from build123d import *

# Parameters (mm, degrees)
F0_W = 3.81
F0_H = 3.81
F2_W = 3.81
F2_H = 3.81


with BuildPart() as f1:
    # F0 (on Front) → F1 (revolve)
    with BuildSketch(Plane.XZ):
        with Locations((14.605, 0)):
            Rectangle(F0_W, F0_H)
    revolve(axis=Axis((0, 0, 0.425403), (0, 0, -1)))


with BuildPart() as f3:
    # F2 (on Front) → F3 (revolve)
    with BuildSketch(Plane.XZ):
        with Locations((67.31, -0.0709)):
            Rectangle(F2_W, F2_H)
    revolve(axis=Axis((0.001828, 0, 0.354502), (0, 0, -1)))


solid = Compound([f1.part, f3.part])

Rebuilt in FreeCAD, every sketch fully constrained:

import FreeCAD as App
import Part
import Sketcher

V = App.Vector
Q = App.Units.Quantity

doc = App.newDocument("Part")
params = doc.addObject("Spreadsheet::Sheet", "Params")
for row, (alias, value) in enumerate([
    ("sketch1_width", "0.15 in"),
    ("revolution_angle", "360 deg"),
    ("sketch2_width", "0.15 in"),
    ("revolution2_angle", "360 deg"),
], start=1):
    params.set(f"A{row}", alias)
    params.set(f"B{row}", "=" + value)
    params.setAlias(f"B{row}", alias)

body = doc.addObject("PartDesign::Body", "Body")

sketch1 = doc.addObject("Sketcher::SketchObject", "Sketch")
body.addObject(sketch1)
sketch1.AttachmentSupport = (doc.XZ_Plane, [""])
sketch1.MapMode = "FlatFace"
sketch1.addGeometry(Part.LineSegment(V(12.7, 1.9, 0), V(12.7, -1.9, 0)), False)
sketch1.addGeometry(Part.LineSegment(V(12.7, -1.9, 0), V(16.5, -1.9, 0)), False)
sketch1.addGeometry(Part.LineSegment(V(16.5, -1.9, 0), V(16.5, 1.9, 0)), False)
sketch1.addGeometry(Part.LineSegment(V(16.5, 1.9, 0), V(12.7, 1.9, 0)), False)
sketch1.addConstraint(Sketcher.Constraint("Coincident", 0, 2, 1, 1))
sketch1.addConstraint(Sketcher.Constraint("Coincident", 1, 2, 2, 1))
sketch1.addConstraint(Sketcher.Constraint("Coincident", 2, 2, 3, 1))
sketch1.addConstraint(Sketcher.Constraint("Coincident", 3, 2, 0, 1))
sketch1.addConstraint(Sketcher.Constraint("Vertical", 0))
sketch1.addConstraint(Sketcher.Constraint("Horizontal", 1))
sketch1.addConstraint(Sketcher.Constraint("Vertical", 2))
sketch1.addConstraint(Sketcher.Constraint("Horizontal", 3))
sketch1.addConstraint(Sketcher.Constraint("Equal", 3, 0))
sketch1.addConstraint(Sketcher.Constraint("DistanceX", 1, 1, 1, 2, Q("0.15 in")))
sketch1.addConstraint(Sketcher.Constraint("DistanceX", -1, 1, 0, 2, Q("0.5 in")))
sketch1.addConstraint(Sketcher.Constraint("DistanceY", 0, 2, -1, 1, Q("0.075 in")))
sketch1.setExpression("Constraints[9]", "Params.sketch1_width")
revolution = doc.addObject("PartDesign::Revolution", "Revolution")
body.addObject(revolution)
revolution.Profile = sketch1
revolution.ReferenceAxis = (sketch1, ["V_Axis"])
revolution.setExpression("Angle", "Params.revolution_angle")
body2 = doc.addObject("PartDesign::Body", "Body001")

sketch2 = doc.addObject("Sketcher::SketchObject", "Sketch001")
body2.addObject(sketch2)
sketch2.AttachmentSupport = (doc.getObject("XZ_Plane001"), [""])
sketch2.MapMode = "FlatFace"
sketch2.addGeometry(Part.LineSegment(V(65.4, 1.8, 0), V(65.4, -2, 0)), False)
sketch2.addGeometry(Part.LineSegment(V(65.4, -2, 0), V(69.2, -2, 0)), False)
sketch2.addGeometry(Part.LineSegment(V(69.2, -2, 0), V(69.2, 1.8, 0)), False)
sketch2.addGeometry(Part.LineSegment(V(69.2, 1.8, 0), V(65.4, 1.8, 0)), False)
sketch2.addGeometry(Part.LineSegment(V(0, 1.8, 0), V(0, -2, 0)), True)
sketch2.addConstraint(Sketcher.Constraint("Coincident", 0, 2, 1, 1))
sketch2.addConstraint(Sketcher.Constraint("Coincident", 1, 2, 2, 1))
sketch2.addConstraint(Sketcher.Constraint("Coincident", 2, 2, 3, 1))
sketch2.addConstraint(Sketcher.Constraint("Coincident", 3, 2, 0, 1))
sketch2.addConstraint(Sketcher.Constraint("Vertical", 0))
sketch2.addConstraint(Sketcher.Constraint("Horizontal", 1))
sketch2.addConstraint(Sketcher.Constraint("Vertical", 2))
sketch2.addConstraint(Sketcher.Constraint("Horizontal", 3))
sketch2.addConstraint(Sketcher.Constraint("Vertical", 4))
sketch2.addConstraint(Sketcher.Constraint("Horizontal", 3, 2, 4, 1))
sketch2.addConstraint(Sketcher.Constraint("Horizontal", 1, 2, 4, 2))
sketch2.addConstraint(Sketcher.Constraint("Equal", 3, 0))
sketch2.addConstraint(Sketcher.Constraint("DistanceX", 1, 1, 1, 2, Q("0.15 in")))
sketch2.addConstraint(Sketcher.Constraint("DistanceX", -1, 1, 0, 2, Q("2.575 in")))
sketch2.addConstraint(Sketcher.Constraint("DistanceY", 0, 2, -1, 1, Q("1.9759 mm")))
sketch2.addConstraint(Sketcher.Constraint("DistanceX", 4, 1, 3, 2, Q("65.403172 mm")))
sketch2.setExpression("Constraints[12]", "Params.sketch2_width")
revolution2 = doc.addObject("PartDesign::Revolution", "Revolution001")
body2.addObject(revolution2)
revolution2.Profile = sketch2
revolution2.ReferenceAxis = (sketch2, ["Axis0"])
revolution2.setExpression("Angle", "Params.revolution2_angle")

doc.recompute()
